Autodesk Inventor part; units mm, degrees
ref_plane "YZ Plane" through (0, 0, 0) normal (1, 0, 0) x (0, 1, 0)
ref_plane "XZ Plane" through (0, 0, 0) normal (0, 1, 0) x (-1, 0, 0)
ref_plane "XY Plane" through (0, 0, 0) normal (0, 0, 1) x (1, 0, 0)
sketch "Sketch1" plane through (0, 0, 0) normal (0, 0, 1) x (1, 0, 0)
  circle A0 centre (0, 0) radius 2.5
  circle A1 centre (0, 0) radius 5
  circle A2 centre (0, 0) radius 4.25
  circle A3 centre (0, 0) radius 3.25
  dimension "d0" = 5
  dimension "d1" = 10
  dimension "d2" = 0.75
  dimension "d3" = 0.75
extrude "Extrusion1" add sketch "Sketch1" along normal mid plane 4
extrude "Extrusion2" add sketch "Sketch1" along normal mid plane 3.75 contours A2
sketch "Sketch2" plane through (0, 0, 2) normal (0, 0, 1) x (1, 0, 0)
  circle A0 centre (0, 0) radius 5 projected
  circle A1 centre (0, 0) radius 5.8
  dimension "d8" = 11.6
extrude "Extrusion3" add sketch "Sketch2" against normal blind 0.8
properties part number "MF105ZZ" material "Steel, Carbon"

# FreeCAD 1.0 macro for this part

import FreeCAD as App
import Part
import Sketcher

V = App.Vector

doc = App.newDocument("Part")
body = doc.addObject("PartDesign::Body", "Body")
body.AllowCompound = True

# Sketch on XY plane
sketch1 = doc.addObject("Sketcher::SketchObject", "Sketch")
body.addObject(sketch1)
sketch1.AttachmentSupport = (doc.XY_Plane, [""])
sketch1.MapMode = "FlatFace"
sketch1.addGeometry(Part.Circle(V(0, 0, 0), V(0, 0, 1), 5), False)
sketch1.addGeometry(Part.Circle(V(0, 0, 0), V(0, 0, 1), 4.2), False)
sketch1.addGeometry(Part.Circle(V(0, 0, 0), V(0, 0, 1), 3.2), False)
sketch1.addGeometry(Part.Circle(V(0, 0, 0), V(0, 0, 1), 2.5), False)
sketch1.addConstraint(Sketcher.Constraint("Coincident", 0, 3, -1, 1))
sketch1.addConstraint(Sketcher.Constraint("Coincident", 1, 3, -1, 1))
sketch1.addConstraint(Sketcher.Constraint("Coincident", 2, 3, -1, 1))
sketch1.addConstraint(Sketcher.Constraint("Coincident", 3, 3, -1, 1))
sketch1.addConstraint(Sketcher.Constraint("Diameter", 0, 10.0))
sketch1.addConstraint(Sketcher.Constraint("Diameter", 3, 5.0))
sketch1.addConstraint(Sketcher.Constraint("Diameter", 1, 8.5))
sketch1.addConstraint(Sketcher.Constraint("Diameter", 2, 6.5))
pad1 = doc.addObject("PartDesign::Pad", "Pad")
body.addObject(pad1)
pad1.Profile = sketch1
pad1.Length = 4
pad1.Midplane = True

# Sketch on XY plane
sketch2 = doc.addObject("Sketcher::SketchObject", "Sketch001")
body.addObject(sketch2)
sketch2.AttachmentSupport = (doc.XY_Plane, [""])
sketch2.MapMode = "FlatFace"
sketch2.addGeometry(Part.Circle(V(0, 0, 0), V(0, 0, 1), 4.2), False)
sketch2.addGeometry(Part.Circle(V(0, 0, 0), V(0, 0, 1), 3.2), False)
sketch2.addConstraint(Sketcher.Constraint("Coincident", 0, 3, -1, 1))
sketch2.addConstraint(Sketcher.Constraint("Coincident", 1, 3, -1, 1))
sketch2.addConstraint(Sketcher.Constraint("Diameter", 0, 8.5))
sketch2.addConstraint(Sketcher.Constraint("Diameter", 1, 6.5))
pad2 = doc.addObject("PartDesign::Pad", "Pad001")
body.addObject(pad2)
pad2.Profile = sketch2
pad2.Length = 3.75
pad2.Midplane = True

# Sketch on XY plane
sketch3 = doc.addObject("Sketcher::SketchObject", "Sketch002")
body.addObject(sketch3)
sketch3.AttachmentSupport = (doc.XY_Plane, [""])
sketch3.MapMode = "FlatFace"
sketch3.AttachmentOffset = App.Placement(V(0, 0, 2), App.Rotation())
sketch3.addGeometry(Part.Circle(V(0, 0, 0), V(0, 0, 1), 6), False)
sketch3.addGeometry(Part.Circle(V(0, 0, 0), V(0, 0, 1), 5), False)
sketch3.addConstraint(Sketcher.Constraint("Coincident", 0, 3, -1, 1))
sketch3.addConstraint(Sketcher.Constraint("Coincident", 1, 3, -1, 1))
sketch3.addConstraint(Sketcher.Constraint("Diameter", 0, 11.6))
sketch3.addConstraint(Sketcher.Constraint("Diameter", 1, 10.0))
pad3 = doc.addObject("PartDesign::Pad", "Pad002")
body.addObject(pad3)
pad3.Profile = sketch3
pad3.Length = 0.8
pad3.Reversed = True

doc.recompute()
